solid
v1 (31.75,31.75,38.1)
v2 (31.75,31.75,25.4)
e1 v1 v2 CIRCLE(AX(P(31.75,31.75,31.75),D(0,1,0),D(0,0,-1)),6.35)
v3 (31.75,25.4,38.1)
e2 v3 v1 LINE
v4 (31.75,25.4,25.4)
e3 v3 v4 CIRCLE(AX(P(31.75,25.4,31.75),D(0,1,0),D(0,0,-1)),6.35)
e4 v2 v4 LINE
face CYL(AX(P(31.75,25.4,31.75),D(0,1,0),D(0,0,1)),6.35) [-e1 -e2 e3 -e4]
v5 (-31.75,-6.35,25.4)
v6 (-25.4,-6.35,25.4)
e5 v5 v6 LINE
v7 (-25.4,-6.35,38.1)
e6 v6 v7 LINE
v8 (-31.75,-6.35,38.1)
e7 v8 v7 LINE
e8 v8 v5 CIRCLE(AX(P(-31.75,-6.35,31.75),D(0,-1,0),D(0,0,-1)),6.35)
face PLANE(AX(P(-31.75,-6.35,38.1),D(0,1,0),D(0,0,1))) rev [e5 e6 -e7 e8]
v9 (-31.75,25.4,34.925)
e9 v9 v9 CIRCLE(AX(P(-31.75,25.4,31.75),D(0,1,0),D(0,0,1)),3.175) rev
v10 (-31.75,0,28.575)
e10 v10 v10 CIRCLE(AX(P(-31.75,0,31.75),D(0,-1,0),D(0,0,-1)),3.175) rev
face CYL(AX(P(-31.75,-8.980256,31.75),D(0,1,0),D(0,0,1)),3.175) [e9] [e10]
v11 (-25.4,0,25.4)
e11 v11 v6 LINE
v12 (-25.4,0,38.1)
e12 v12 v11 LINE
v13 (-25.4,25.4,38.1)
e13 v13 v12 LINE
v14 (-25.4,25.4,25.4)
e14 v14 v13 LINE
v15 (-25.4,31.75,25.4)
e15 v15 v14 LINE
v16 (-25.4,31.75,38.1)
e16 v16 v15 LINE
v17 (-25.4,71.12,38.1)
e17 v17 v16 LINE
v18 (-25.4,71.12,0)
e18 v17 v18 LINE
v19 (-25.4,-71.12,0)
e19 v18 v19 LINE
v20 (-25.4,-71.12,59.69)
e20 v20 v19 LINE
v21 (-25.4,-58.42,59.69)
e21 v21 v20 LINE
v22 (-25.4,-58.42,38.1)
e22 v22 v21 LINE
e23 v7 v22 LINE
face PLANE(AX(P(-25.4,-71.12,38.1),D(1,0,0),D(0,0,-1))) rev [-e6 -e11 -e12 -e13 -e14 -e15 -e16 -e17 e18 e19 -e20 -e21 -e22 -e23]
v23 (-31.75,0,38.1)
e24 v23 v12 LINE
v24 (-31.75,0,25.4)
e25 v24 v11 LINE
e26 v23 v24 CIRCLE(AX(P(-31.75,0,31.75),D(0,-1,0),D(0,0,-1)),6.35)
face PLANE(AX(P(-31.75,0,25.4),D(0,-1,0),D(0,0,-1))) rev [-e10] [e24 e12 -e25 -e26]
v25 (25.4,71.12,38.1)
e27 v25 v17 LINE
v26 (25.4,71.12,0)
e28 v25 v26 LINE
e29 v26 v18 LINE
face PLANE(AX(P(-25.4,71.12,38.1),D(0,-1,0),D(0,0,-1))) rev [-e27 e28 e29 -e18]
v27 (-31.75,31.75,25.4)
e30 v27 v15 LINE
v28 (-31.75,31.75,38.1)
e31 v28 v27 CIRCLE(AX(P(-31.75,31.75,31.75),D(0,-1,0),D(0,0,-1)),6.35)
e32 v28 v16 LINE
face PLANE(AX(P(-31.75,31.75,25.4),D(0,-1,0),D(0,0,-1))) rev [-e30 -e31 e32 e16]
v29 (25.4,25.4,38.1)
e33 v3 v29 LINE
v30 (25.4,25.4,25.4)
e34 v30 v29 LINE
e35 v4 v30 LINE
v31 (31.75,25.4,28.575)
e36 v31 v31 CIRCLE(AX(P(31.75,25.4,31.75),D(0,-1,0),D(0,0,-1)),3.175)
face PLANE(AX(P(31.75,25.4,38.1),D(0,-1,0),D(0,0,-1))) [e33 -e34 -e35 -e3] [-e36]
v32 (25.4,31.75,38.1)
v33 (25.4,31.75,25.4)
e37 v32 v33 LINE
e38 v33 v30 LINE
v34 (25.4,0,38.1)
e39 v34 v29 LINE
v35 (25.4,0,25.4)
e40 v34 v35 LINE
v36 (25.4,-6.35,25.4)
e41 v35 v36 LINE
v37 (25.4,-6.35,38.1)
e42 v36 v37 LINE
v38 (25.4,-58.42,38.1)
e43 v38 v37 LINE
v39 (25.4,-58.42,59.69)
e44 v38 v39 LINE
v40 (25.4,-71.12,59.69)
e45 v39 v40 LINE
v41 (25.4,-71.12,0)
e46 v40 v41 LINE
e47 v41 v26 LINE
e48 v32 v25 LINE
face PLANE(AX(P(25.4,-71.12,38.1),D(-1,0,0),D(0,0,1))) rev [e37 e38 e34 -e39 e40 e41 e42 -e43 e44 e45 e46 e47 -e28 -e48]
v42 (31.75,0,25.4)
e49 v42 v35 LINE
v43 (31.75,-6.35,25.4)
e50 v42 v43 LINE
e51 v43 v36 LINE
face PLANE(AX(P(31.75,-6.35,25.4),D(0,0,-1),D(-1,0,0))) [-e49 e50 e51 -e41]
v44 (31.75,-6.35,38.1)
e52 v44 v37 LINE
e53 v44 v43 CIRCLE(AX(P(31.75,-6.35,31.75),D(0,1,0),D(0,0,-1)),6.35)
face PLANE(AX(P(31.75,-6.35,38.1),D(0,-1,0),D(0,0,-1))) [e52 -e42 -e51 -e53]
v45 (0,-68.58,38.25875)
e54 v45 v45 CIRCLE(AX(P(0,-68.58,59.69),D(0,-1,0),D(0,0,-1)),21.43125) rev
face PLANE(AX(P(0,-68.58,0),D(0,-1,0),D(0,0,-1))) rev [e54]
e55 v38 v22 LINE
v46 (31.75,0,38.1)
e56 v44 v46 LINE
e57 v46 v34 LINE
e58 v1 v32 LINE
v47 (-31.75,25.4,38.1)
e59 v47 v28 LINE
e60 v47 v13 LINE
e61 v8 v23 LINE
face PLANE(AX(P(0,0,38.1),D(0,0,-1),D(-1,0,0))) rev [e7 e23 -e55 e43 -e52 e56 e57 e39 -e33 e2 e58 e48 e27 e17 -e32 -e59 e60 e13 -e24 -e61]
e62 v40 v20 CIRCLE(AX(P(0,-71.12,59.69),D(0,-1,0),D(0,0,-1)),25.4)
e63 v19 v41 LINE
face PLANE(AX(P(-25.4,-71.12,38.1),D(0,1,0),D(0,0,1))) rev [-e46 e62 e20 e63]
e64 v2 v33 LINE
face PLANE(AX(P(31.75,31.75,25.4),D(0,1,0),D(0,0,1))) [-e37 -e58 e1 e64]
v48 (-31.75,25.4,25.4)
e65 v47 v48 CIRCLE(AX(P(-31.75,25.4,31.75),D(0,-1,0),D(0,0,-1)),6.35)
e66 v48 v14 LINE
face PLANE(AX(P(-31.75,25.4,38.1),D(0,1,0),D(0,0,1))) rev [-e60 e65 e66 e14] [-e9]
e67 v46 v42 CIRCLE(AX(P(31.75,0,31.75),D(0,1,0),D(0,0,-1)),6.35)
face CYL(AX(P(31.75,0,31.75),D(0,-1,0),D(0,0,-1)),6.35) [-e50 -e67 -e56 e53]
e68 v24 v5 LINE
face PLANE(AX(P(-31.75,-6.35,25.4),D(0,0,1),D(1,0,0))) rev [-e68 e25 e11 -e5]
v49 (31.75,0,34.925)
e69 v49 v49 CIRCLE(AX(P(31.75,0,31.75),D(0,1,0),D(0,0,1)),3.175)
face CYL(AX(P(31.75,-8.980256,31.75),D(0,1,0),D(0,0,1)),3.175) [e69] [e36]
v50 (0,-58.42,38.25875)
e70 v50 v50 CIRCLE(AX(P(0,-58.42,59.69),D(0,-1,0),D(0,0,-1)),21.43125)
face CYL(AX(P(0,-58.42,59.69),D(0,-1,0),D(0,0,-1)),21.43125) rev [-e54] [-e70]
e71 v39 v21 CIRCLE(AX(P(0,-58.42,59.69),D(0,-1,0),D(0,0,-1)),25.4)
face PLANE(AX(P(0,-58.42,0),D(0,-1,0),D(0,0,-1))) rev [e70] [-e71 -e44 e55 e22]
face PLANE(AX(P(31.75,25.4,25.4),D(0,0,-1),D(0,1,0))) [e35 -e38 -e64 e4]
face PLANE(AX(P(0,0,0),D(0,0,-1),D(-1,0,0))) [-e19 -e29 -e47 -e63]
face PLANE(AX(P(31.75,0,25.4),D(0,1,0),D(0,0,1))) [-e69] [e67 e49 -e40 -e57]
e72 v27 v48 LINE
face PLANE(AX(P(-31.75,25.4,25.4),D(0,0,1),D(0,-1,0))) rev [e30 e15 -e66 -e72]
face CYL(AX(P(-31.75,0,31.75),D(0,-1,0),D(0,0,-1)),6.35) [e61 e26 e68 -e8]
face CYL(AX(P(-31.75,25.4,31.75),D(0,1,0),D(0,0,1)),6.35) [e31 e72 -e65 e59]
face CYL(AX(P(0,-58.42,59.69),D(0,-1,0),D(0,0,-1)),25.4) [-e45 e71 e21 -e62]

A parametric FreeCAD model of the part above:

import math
import FreeCAD as App
import Part
import Sketcher

V = App.Vector
Q = App.Units.Quantity

doc = App.newDocument("Part")
body = doc.addObject("PartDesign::Body", "Body")

sketch1 = doc.addObject("Sketcher::SketchObject", "Sketch")
body.addObject(sketch1)
sketch1.AttachmentSupport = (doc.XY_Plane, [""])
sketch1.MapMode = "FlatFace"
sketch1.addGeometry([
    Part.LineSegment(V(-25, 71, 0), V(-25, -71, 0)),
    Part.LineSegment(V(-25, -71, 0), V(25, -71, 0)),
    Part.LineSegment(V(25, -71, 0), V(25, 71, 0)),
    Part.LineSegment(V(25, 71, 0), V(-25, 71, 0)),
], False)
sketch1.addConstraint([
    Sketcher.Constraint("Coincident", 0, 2, 1, 1),
    Sketcher.Constraint("Coincident", 1, 2, 2, 1),
    Sketcher.Constraint("Coincident", 2, 2, 3, 1),
    Sketcher.Constraint("Coincident", 3, 2, 0, 1),
    Sketcher.Constraint("Vertical", 0),
    Sketcher.Constraint("Horizontal", 1),
    Sketcher.Constraint("Vertical", 2),
    Sketcher.Constraint("Horizontal", 3),
    Sketcher.Constraint("Symmetric", 0, 2, 2, 2, -1, 1),
    Sketcher.Constraint("DistanceX", 1, 1, 1, 2, Q("2 in")),
    Sketcher.Constraint("DistanceY", 0, 2, 0, 1, Q("5.6 in")),
])
pad1 = doc.addObject("PartDesign::Pad", "Pad")
body.addObject(pad1)
pad1.Profile = sketch1
pad1.Length = Q("1.5 in")
body2 = doc.addObject("PartDesign::Body", "Body001")

sketch2 = doc.addObject("Sketcher::SketchObject", "Sketch001")
body2.addObject(sketch2)
sketch2.AttachmentSupport = (doc.getObject("XZ_Plane001"), [""])
sketch2.MapMode = "FlatFace"
sketch2.AttachmentOffset = App.Placement(V(0, 0, 2.8 * 25.4), App.Rotation())
sketch2.addGeometry([
    Part.LineSegment(V(-25, 38, 0), V(25, 38, 0)),
    Part.LineSegment(V(25, 38, 0), V(25, 60, 0)),
    Part.ArcOfCircle(Part.Circle(V(0, 60, 0), V(0, 0, 1), 25), math.radians(0), math.radians(180)),
    Part.LineSegment(V(-25, 60, 0), V(-25, 38, 0)),
], False)
sketch2.addConstraint([
    Sketcher.Constraint("Coincident", 0, 2, 1, 1),
    Sketcher.Constraint("Tangent", 1, 2, 2, 1),
    Sketcher.Constraint("Tangent", 2, 2, 3, 1),
    Sketcher.Constraint("Coincident", 3, 2, 0, 1),
    Sketcher.Constraint("Horizontal", 0),
    Sketcher.Constraint("Vertical", 1),
    Sketcher.Constraint("Vertical", 3),
    Sketcher.Constraint("PointOnObject", 2, 3, -2),
    Sketcher.Constraint("Radius", 2, Q("1 in")),
    Sketcher.Constraint("DistanceY", 1, 1, 1, 2, Q("0.85 in")),
    Sketcher.Constraint("DistanceY", -1, 1, 0, 2, Q("1.5 in")),
])
pad2 = doc.addObject("PartDesign::Pad", "Pad001")
body2.addObject(pad2)
pad2.Profile = sketch2
pad2.Length = Q("0.1 in")
pad2.Reversed = True
doc.recompute()

boolean = doc.addObject("PartDesign::Boolean", "Boolean")
body.addObject(boolean)
boolean.Type = "Fuse"
boolean.addObjects([body2])

sketch3 = doc.addObject("Sketcher::SketchObject", "Sketch002")
body.addObject(sketch3)
sketch3.AttachmentSupport = (doc.XZ_Plane, [""])
sketch3.MapMode = "FlatFace"
sketch3.AttachmentOffset = App.Placement(V(0, 0, 2.8 * 25.4), App.Rotation())
sketch3.addGeometry([
    Part.LineSegment(V(25, 38, 0), V(25, 60, 0)),
    Part.ArcOfCircle(Part.Circle(V(0, 60, 0), V(0, 0, 1), 25), math.radians(0), math.radians(180)),
    Part.LineSegment(V(-25, 60, 0), V(-25, 38, 0)),
    Part.LineSegment(V(-25, 38, 0), V(25, 38, 0)),
    Part.Circle(V(0, 60, 0), V(0, 0, 1), 21),
], False)
sketch3.addConstraint([
    Sketcher.Constraint("Tangent", 0, 2, 1, 1),
    Sketcher.Constraint("Tangent", 1, 2, 2, 1),
    Sketcher.Constraint("Coincident", 2, 2, 3, 1),
    Sketcher.Constraint("Coincident", 3, 2, 0, 1),
    Sketcher.Constraint("Vertical", 0),
    Sketcher.Constraint("Vertical", 2),
    Sketcher.Constraint("Horizontal", 3),
    Sketcher.Constraint("Coincident", 4, 3, 1, 3),
    Sketcher.Constraint("PointOnObject", 1, 3, -2),
    Sketcher.Constraint("Radius", 1, Q("1 in")),
    Sketcher.Constraint("Diameter", 4, Q("1.6875 in")),
    Sketcher.Constraint("DistanceY", 0, 1, 0, 2, Q("0.85 in")),
    Sketcher.Constraint("DistanceY", -1, 1, 2, 2, Q("1.5 in")),
])
pad3 = doc.addObject("PartDesign::Pad", "Pad002")
body.addObject(pad3)
pad3.Profile = sketch3
pad3.Length = Q("0.5 in")
pad3.Reversed = True

sketch4 = doc.addObject("Sketcher::SketchObject", "Sketch003")
body.addObject(sketch4)
sketch4.AttachmentSupport = (doc.YZ_Plane, [""])
sketch4.MapMode = "FlatFace"
sketch4.AttachmentOffset = App.Placement(V(0, 0, -1 * 25.4), App.Rotation())
sketch4.addGeometry([
    Part.LineSegment(V(32, 25, 0), V(25, 25, 0)),
    Part.LineSegment(V(25, 25, 0), V(25, 38, 0)),
    Part.LineSegment(V(25, 38, 0), V(32, 38, 0)),
    Part.LineSegment(V(32, 38, 0), V(32, 25, 0)),
    Part.LineSegment(V(0, 25, 0), V(-6, 25, 0)),
    Part.LineSegment(V(-6, 25, 0), V(-6, 38, 0)),
    Part.LineSegment(V(-6, 38, 0), V(0, 38, 0)),
    Part.LineSegment(V(0, 38, 0), V(0, 25, 0)),
], False)
sketch4.addConstraint([
    Sketcher.Constraint("Coincident", 0, 2, 1, 1),
    Sketcher.Constraint("Coincident", 1, 2, 2, 1),
    Sketcher.Constraint("Coincident", 2, 2, 3, 1),
    Sketcher.Constraint("Coincident", 3, 2, 0, 1),
    Sketcher.Constraint("Coincident", 4, 2, 5, 1),
    Sketcher.Constraint("Coincident", 5, 2, 6, 1),
    Sketcher.Constraint("Coincident", 6, 2, 7, 1),
    Sketcher.Constraint("Coincident", 7, 2, 4, 1),
    Sketcher.Constraint("Horizontal", 0),
    Sketcher.Constraint("Vertical", 1),
    Sketcher.Constraint("Horizontal", 2),
    Sketcher.Constraint("Vertical", 3),
    Sketcher.Constraint("Horizontal", 4),
    Sketcher.Constraint("Vertical", 5),
    Sketcher.Constraint("Horizontal", 6),
    Sketcher.Constraint("Vertical", 7),
    Sketcher.Constraint("PointOnObject", 6, 2, -2),
    Sketcher.Constraint("Horizontal", 3, 2, 4, 2),
    Sketcher.Constraint("Horizontal", 2, 2, 5, 2),
    Sketcher.Constraint("Equal", 2, 4),
    Sketcher.Constraint("DistanceY", 1, 1, 1, 2, Q("0.5 in")),
    Sketcher.Constraint("DistanceX", -1, 1, 0, 2, Q("1 in")),
    Sketcher.Constraint("DistanceY", -1, 1, 0, 2, Q("1 in")),
    Sketcher.Constraint("DistanceX", 0, 2, 0, 1, Q("0.25 in")),
])
pad4 = doc.addObject("PartDesign::Pad", "Pad003")
body.addObject(pad4)
pad4.Profile = sketch4
pad4.Length = Q("0.25 in")
pad4.Reversed = True

sketch5 = doc.addObject("Sketcher::SketchObject", "Sketch004")
body.addObject(sketch5)
sketch5.AttachmentSupport = (doc.XZ_Plane, [""])
sketch5.MapMode = "FlatFace"
sketch5.AttachmentOffset = App.Placement(V(0, 0, 0.25 * 25.4), App.Rotation())
sketch5.addGeometry([
    Part.LineSegment(V(-32, 25, 0), V(-32, 38, 0)),
    Part.ArcOfCircle(Part.Circle(V(-32, 32, 0), V(0, 0, 1), 6), math.radians(90), math.radians(270)),
], False)
sketch5.addConstraint([
    Sketcher.Constraint("Coincident", 0, 1, 1, 2),
    Sketcher.Constraint("Coincident", 1, 1, 0, 2),
    Sketcher.Constraint("Vertical", 0),
    Sketcher.Constraint("Vertical", 1, 3, 0, 1),
    Sketcher.Constraint("Radius", 1, Q("0.25 in")),
    Sketcher.Constraint("DistanceY", -1, 1, 0, 1, Q("1 in")),
    Sketcher.Constraint("DistanceX", 1, 3, -1, 1, Q("1.25 in")),
])
pad5 = doc.addObject("PartDesign::Pad", "Pad004")
body.addObject(pad5)
pad5.Profile = sketch5
pad5.Length = Q("0.25 in")
pad5.Reversed = True
doc.recompute()

datumplane = doc.addObject("PartDesign::Plane", "DatumPlane")
body.addObject(datumplane)
datumplane.AttachmentSupport = (doc.XZ_Plane, [""])
datumplane.MapMode = "FlatFace"
datumplane.AttachmentOffset = App.Placement(V(0, 0, -0.5 * 25.4), App.Rotation())
mirrored = doc.addObject("PartDesign::Mirrored", "Mirrored")
body.addObject(mirrored)
mirrored.Originals = [pad5]
mirrored.MirrorPlane = (datumplane, [""])
body.Tip = mirrored

sketch6 = doc.addObject("Sketcher::SketchObject", "Sketch005")
body.addObject(sketch6)
sketch6.AttachmentSupport = (doc.XZ_Plane, [""])
sketch6.MapMode = "FlatFace"
sketch6.AttachmentOffset = App.Placement(V(0, 0, -1 * 25.4), App.Rotation())
sketch6.addGeometry(Part.Circle(V(-31.8, 31.8, 0), V(0, 0, 1), 3.2), False)
sketch6.addConstraint([
    Sketcher.Constraint("Diameter", 0, Q("0.25 in")),
    Sketcher.Constraint("DistanceX", 0, 3, -1, 1, Q("1.25 in")),
    Sketcher.Constraint("DistanceY", -1, 1, 0, 3, Q("1.25 in")),
])
pad6 = doc.addObject("PartDesign::Pad", "Pad005")
body.addObject(pad6)
pad6.Profile = sketch6
pad6.Length = Q("1 in")
doc.recompute()

mirrored2 = doc.addObject("PartDesign::Mirrored", "Mirrored001")
body.addObject(mirrored2)
mirrored2.Originals = [pad6, pad5, pad4]
mirrored2.MirrorPlane = (doc.YZ_Plane, [""])
body.Tip = mirrored2

sketch7 = doc.addObject("Sketcher::SketchObject", "Sketch006")
body.addObject(sketch7)
sketch7.AttachmentSupport = (doc.XZ_Plane, [""])
sketch7.MapMode = "FlatFace"
sketch7.AttachmentOffset = App.Placement(V(0, 0, -1.25 * 25.4), App.Rotation())
sketch7.addGeometry([
    Part.LineSegment(V(32, 25, 0), V(32, 38, 0)),
    Part.ArcOfCircle(Part.Circle(V(32, 32, 0), V(0, 0, 1), 6), math.radians(-90), math.radians(90)),
], False)
sketch7.addConstraint([
    Sketcher.Constraint("Coincident", 0, 1, 1, 1),
    Sketcher.Constraint("Coincident", 1, 2, 0, 2),
    Sketcher.Constraint("Vertical", 0),
    Sketcher.Constraint("Vertical", 1, 3, 0, 1),
    Sketcher.Constraint("Radius", 1, Q("0.25 in")),
    Sketcher.Constraint("DistanceY", -1, 1, 0, 1, Q("1 in")),
    Sketcher.Constraint("DistanceX", -1, 1, 1, 3, Q("1.25 in")),
])
pad7 = doc.addObject("PartDesign::Pad", "Pad006")
body.addObject(pad7)
pad7.Profile = sketch7
pad7.Length = Q("0.25 in")

doc.recompute()
